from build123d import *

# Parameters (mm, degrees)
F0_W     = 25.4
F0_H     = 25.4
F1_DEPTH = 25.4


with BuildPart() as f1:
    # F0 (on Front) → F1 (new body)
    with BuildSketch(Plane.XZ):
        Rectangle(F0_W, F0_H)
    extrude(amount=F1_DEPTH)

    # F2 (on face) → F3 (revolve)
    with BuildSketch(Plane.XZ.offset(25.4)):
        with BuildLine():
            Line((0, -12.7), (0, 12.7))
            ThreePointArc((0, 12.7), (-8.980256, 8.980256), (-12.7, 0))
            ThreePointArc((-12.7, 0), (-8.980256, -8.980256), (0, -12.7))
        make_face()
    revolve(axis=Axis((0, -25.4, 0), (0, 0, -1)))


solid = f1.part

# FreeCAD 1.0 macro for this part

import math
import FreeCAD as App
import Part
import Sketcher
from FreeCAD import Vector
Q = App.Units.Quantity

doc = App.newDocument("Part")
body = doc.addObject("PartDesign::Body", "Body")

sketch1 = body.newObject("Sketcher::SketchObject", "Sketch")
sketch1.AttachmentSupport = (doc.getObject("XZ_Plane"), [""])
sketch1.MapMode = "FlatFace"
sketch1.addGeometry(Part.LineSegment(Vector(-13, 13, 0), Vector(-13, -13, 0)), False)
sketch1.addGeometry(Part.LineSegment(Vector(-13, -13, 0), Vector(13, -13, 0)), False)
sketch1.addGeometry(Part.LineSegment(Vector(13, -13, 0), Vector(13, 13, 0)), False)
sketch1.addGeometry(Part.LineSegment(Vector(13, 13, 0), Vector(-13, 13, 0)), False)
sketch1.addConstraint(Sketcher.Constraint("Coincident", 0, 2, 1, 1))
sketch1.addConstraint(Sketcher.Constraint("Coincident", 1, 2, 2, 1))
sketch1.addConstraint(Sketcher.Constraint("Coincident", 2, 2, 3, 1))
sketch1.addConstraint(Sketcher.Constraint("Coincident", 3, 2, 0, 1))
sketch1.addConstraint(Sketcher.Constraint("Vertical", 0))
sketch1.addConstraint(Sketcher.Constraint("Horizontal", 1))
sketch1.addConstraint(Sketcher.Constraint("Vertical", 2))
sketch1.addConstraint(Sketcher.Constraint("Horizontal", 3))
sketch1.addConstraint(Sketcher.Constraint("Symmetric", 0, 2, 2, 2, -1, 1))
sketch1.addConstraint(Sketcher.Constraint("Equal", 3, 0))
sketch1.addConstraint(Sketcher.Constraint("DistanceX", 1, 1, 1, 2, Q("1 in")))
pad1 = body.newObject("PartDesign::Pad", "Pad")
pad1.Profile = sketch1
pad1.Length = Q("1 in")

sketch2 = body.newObject("Sketcher::SketchObject", "Sketch001")
sketch2.AttachmentSupport = (doc.getObject("XZ_Plane"), [""])
sketch2.MapMode = "FlatFace"
sketch2.AttachmentOffset = App.Placement(Vector(0, 0, 1 * 25.4), App.Rotation())
sketch2.addGeometry(Part.LineSegment(Vector(0, -13, 0), Vector(0, 13, 0)), False)
sketch2.addGeometry(Part.ArcOfCircle(Part.Circle(Vector(0, 0, 0), Vector(0, 0, 1), 13), math.radians(90), math.radians(180)), False)
sketch2.addGeometry(Part.ArcOfCircle(Part.Circle(Vector(0, 0, 0), Vector(0, 0, 1), 13), math.radians(-180), math.radians(-90)), False)
sketch2.addConstraint(Sketcher.Constraint("Coincident", 0, 2, 1, 1))
sketch2.addConstraint(Sketcher.Constraint("Tangent", 1, 2, 2, 1))
sketch2.addConstraint(Sketcher.Constraint("Coincident", 2, 2, 0, 1))
sketch2.addConstraint(Sketcher.Constraint("Vertical", 0))
sketch2.addConstraint(Sketcher.Constraint("Coincident", 1, 3, -1, 1))
sketch2.addConstraint(Sketcher.Constraint("Equal", 1, 2))
sketch2.addConstraint(Sketcher.Constraint("PointOnObject", 0, 2, -2))
sketch2.addConstraint(Sketcher.Constraint("PointOnObject", 1, 2, -1))
sketch2.addConstraint(Sketcher.Constraint("Radius", 1, Q("0.5 in")))
revolution = body.newObject("PartDesign::Revolution", "Revolution")
revolution.Profile = sketch2
revolution.ReferenceAxis = (sketch2, ["V_Axis"])
revolution.Angle = 360

doc.recompute()
